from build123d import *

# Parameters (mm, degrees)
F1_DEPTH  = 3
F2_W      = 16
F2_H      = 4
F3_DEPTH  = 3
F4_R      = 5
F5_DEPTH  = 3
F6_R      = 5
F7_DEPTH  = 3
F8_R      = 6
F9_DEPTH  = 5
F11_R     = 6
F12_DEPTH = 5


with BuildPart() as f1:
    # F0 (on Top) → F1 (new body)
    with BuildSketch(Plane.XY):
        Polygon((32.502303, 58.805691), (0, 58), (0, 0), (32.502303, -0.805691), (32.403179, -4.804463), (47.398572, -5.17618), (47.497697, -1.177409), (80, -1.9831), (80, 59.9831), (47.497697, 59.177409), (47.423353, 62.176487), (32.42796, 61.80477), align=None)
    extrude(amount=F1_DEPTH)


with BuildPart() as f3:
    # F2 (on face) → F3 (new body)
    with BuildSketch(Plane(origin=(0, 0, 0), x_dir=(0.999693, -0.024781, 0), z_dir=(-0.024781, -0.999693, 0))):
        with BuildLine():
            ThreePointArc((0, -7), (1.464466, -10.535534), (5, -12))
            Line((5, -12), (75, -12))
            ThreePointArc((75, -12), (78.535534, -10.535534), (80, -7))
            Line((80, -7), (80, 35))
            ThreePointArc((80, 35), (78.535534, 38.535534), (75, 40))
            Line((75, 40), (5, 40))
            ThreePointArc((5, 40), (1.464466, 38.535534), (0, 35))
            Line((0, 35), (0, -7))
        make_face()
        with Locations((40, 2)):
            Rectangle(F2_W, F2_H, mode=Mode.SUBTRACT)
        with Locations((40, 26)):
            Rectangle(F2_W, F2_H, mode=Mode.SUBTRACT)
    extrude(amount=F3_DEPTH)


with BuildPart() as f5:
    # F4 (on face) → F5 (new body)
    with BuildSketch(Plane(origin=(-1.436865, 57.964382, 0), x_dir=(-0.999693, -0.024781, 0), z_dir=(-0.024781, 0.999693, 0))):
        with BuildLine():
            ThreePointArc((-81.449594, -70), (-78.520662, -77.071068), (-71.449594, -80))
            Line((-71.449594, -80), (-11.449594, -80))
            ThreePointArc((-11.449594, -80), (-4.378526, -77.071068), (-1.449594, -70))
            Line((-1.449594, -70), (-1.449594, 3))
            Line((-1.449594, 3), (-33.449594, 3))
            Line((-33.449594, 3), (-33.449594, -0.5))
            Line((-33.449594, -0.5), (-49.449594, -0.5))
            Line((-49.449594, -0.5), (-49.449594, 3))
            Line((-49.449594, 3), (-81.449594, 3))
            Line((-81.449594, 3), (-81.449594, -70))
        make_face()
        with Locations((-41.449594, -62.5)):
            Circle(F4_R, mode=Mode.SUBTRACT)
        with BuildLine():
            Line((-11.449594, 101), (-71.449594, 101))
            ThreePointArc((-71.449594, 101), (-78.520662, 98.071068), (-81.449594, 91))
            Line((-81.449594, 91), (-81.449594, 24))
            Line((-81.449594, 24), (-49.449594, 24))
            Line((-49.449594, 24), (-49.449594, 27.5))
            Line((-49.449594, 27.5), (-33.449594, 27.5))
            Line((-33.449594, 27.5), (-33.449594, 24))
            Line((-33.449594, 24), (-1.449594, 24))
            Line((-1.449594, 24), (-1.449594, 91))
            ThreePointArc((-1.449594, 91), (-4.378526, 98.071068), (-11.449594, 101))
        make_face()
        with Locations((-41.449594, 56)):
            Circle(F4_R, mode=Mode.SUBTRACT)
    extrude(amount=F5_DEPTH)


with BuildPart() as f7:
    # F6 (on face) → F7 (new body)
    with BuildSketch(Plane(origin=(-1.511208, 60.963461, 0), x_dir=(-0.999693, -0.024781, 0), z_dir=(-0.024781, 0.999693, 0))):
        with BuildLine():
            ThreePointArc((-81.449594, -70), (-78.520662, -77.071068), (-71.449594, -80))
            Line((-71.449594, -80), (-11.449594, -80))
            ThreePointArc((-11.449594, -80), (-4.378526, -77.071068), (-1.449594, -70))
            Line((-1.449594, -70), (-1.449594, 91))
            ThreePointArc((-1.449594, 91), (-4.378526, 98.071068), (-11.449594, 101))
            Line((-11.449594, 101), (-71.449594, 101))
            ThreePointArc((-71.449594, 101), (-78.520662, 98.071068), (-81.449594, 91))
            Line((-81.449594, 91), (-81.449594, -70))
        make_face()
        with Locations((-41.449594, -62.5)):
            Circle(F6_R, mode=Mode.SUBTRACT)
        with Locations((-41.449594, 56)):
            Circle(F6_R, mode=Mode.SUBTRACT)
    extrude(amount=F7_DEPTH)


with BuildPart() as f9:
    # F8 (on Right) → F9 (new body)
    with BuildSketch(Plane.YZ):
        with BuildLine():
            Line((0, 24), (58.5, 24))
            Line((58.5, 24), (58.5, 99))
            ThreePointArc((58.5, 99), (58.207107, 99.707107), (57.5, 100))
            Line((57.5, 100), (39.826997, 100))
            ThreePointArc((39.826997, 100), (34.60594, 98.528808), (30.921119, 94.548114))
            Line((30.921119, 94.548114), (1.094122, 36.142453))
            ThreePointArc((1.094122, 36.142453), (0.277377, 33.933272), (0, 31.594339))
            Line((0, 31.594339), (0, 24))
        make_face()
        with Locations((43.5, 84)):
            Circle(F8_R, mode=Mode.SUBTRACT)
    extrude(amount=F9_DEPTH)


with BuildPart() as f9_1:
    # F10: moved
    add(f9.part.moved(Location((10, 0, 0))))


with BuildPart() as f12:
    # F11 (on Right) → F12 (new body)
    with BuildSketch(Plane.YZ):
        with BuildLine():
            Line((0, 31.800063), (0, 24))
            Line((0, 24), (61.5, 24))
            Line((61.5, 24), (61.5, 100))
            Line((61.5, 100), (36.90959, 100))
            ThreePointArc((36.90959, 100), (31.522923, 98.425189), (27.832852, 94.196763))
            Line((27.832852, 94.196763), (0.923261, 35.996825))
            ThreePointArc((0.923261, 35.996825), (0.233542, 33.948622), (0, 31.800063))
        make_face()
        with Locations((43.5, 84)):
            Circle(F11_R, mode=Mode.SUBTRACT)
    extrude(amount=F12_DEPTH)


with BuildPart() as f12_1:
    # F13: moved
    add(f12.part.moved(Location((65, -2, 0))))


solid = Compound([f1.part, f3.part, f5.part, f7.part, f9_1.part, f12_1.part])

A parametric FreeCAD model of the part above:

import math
import FreeCAD as App
import Part
import Sketcher

V = App.Vector
Q = App.Units.Quantity


def add_polygon(sketch, points):
    """Adds a closed chain of lines whose ends are joined by coincident constraints."""
    first, n = sketch.GeometryCount, len(points)
    for a, b in zip(points, points[1:] + points[:1]):
        sketch.addGeometry(Part.LineSegment(App.Vector(*a, 0), App.Vector(*b, 0)), False)
    for i in range(n):
        sketch.addConstraint(Sketcher.Constraint("Coincident", first + i, 2, first + (i + 1) % n, 1))

doc = App.newDocument("Part")
body = doc.addObject("PartDesign::Body", "Body")

sketch1 = body.newObject("Sketcher::SketchObject", "Sketch")
sketch1.AttachmentSupport = (doc.getObject("XY_Plane"), [""])
sketch1.MapMode = "FlatFace"
add_polygon(sketch1, [(32.502303, 58.805691), (0, 58), (0, 0), (32.502303, -0.805691), (32.403179, -4.804463), (47.398572, -5.17618), (47.497697, -1.177409), (80, -1.9831), (80, 59.9831), (47.497697, 59.177409), (47.423353, 62.176487), (32.42796, 61.80477)])
sketch1.addConstraint([
    Sketcher.Constraint("Vertical", 1),
    Sketcher.Constraint("Vertical", 7),
    Sketcher.Constraint("Coincident", 1, 2, -1, 1),
    Sketcher.Constraint("Perpendicular", 2, 3),
    Sketcher.Constraint("Perpendicular", 3, 4),
    Sketcher.Constraint("Perpendicular", 4, 5),
    Sketcher.Constraint("Perpendicular", 5, 6),
    Sketcher.Constraint("Parallel", 0, 8),
    Sketcher.Constraint("Perpendicular", 8, 9),
    Sketcher.Constraint("Perpendicular", 9, 10),
    Sketcher.Constraint("Perpendicular", 10, 11),
    Sketcher.Constraint("Vertical", 5, 2, 8, 2),
    Sketcher.Constraint("Vertical", 2, 2, 11, 2),
    Sketcher.Constraint("Equal", 0, 2),
    Sketcher.Constraint("Equal", 3, 5),
    Sketcher.Constraint("Equal", 2, 6),
    Sketcher.Constraint("Equal", 4, 10),
    Sketcher.Constraint("DistanceY", 1, 2, 1, 1, Q("58 mm")),
    Sketcher.Constraint("Distance", 3, Q("4 mm")),
    Sketcher.Constraint("Distance", 4, Q("14.999999 mm")),
    Sketcher.Constraint("Distance", 9, Q("2.999999 mm")),
    Sketcher.Constraint("DistanceX", -1, 1, 6, 2, Q("80 mm")),
    Sketcher.Constraint("Angle", 0, Q("-178.580001 deg")),
])
pad1 = body.newObject("PartDesign::Pad", "Pad")
pad1.Profile = sketch1
pad1.Length = 3
body2 = doc.addObject("PartDesign::Body", "Body001")

sketch2 = body2.newObject("Sketcher::SketchObject", "Sketch001")
sketch2.Placement = App.Placement(V(0, 0, 0), App.Rotation(V(0.999692904, -0.024780998, 0), V(0, 0, 1), V(-0.024780998, -0.999692904, 0), "ZXY"))
sketch2.addGeometry(Part.ArcOfCircle(Part.Circle(V(5, -7, 0), V(0, 0, 1), 5), math.radians(179.999996), math.radians(270.000004)), False)
sketch2.addGeometry(Part.LineSegment(V(5, -12, 0), V(75, -12, 0)), False)
sketch2.addGeometry(Part.ArcOfCircle(Part.Circle(V(75, -7, 0), V(0, 0, 1), 5), math.radians(-90.000004), math.radians(0.000004)), False)
sketch2.addGeometry(Part.LineSegment(V(80, -7, 0), V(80, 35, 0)), False)
sketch2.addGeometry(Part.ArcOfCircle(Part.Circle(V(75, 35, 0), V(0, 0, 1), 5), math.radians(-0.000004), math.radians(90.000004)), False)
sketch2.addGeometry(Part.LineSegment(V(75, 40, 0), V(5, 40, 0)), False)
sketch2.addGeometry(Part.ArcOfCircle(Part.Circle(V(5, 35, 0), V(0, 0, 1), 5), math.radians(89.999996), math.radians(180.000004)), False)
sketch2.addGeometry(Part.LineSegment(V(0, 35, 0), V(0, -7, 0)), False)
add_polygon(sketch2, [(48, 0), (32, 0), (32, 4), (48, 4)])
add_polygon(sketch2, [(48, 24), (32, 24), (32, 28), (48, 28)])
sketch2.addConstraint([
    Sketcher.Constraint("Tangent", 0, 2, 1, 1),
    Sketcher.Constraint("Tangent", 1, 2, 2, 1),
    Sketcher.Constraint("Tangent", 2, 2, 3, 1),
    Sketcher.Constraint("Tangent", 3, 2, 4, 1),
    Sketcher.Constraint("Tangent", 4, 2, 5, 1),
    Sketcher.Constraint("Tangent", 5, 2, 6, 1),
    Sketcher.Constraint("Tangent", 6, 2, 7, 1),
    Sketcher.Constraint("Tangent", 7, 2, 0, 1),
    Sketcher.Constraint("Horizontal", 1),
    Sketcher.Constraint("Vertical", 3),
    Sketcher.Constraint("Horizontal", 5),
    Sketcher.Constraint("Vertical", 7),
    Sketcher.Constraint("Horizontal", 8),
    Sketcher.Constraint("Vertical", 9),
    Sketcher.Constraint("Horizontal", 10),
    Sketcher.Constraint("Vertical", 11),
    Sketcher.Constraint("Horizontal", 12),
    Sketcher.Constraint("Vertical", 13),
    Sketcher.Constraint("Horizontal", 14),
    Sketcher.Constraint("Vertical", 15),
    Sketcher.Constraint("Equal", 0, 2),
    Sketcher.Constraint("Equal", 2, 4),
    Sketcher.Constraint("Equal", 4, 6),
    Sketcher.Constraint("PointOnObject", 6, 2, -2),
    Sketcher.Constraint("PointOnObject", 8, 2, -1),
    Sketcher.Constraint("Vertical", 9, 2, 12, 2),
    Sketcher.Constraint("Vertical", 11, 2, 14, 2),
    Sketcher.Constraint("Equal", 11, 13),
    Sketcher.Constraint("Radius", 0, Q("5 mm")),
    Sketcher.Constraint("DistanceX", 1, 1, 1, 2, Q("70 mm")),
    Sketcher.Constraint("DistanceX", 8, 2, 8, 1, Q("16 mm")),
    Sketcher.Constraint("DistanceY", 3, 1, 3, 2, Q("42 mm")),
    Sketcher.Constraint("DistanceY", 9, 1, 9, 2, Q("4 mm")),
    Sketcher.Constraint("DistanceY", 0, 3, -1, 1, Q("7 mm")),
    Sketcher.Constraint("DistanceX", -1, 1, 8, 2, Q("32 mm")),
    Sketcher.Constraint("DistanceY", -1, 1, 12, 2, Q("24 mm")),
])
pad2 = body2.newObject("PartDesign::Pad", "Pad001")
pad2.Profile = sketch2
pad2.Length = 3
body3 = doc.addObject("PartDesign::Body", "Body002")
body3.AllowCompound = True

sketch3 = body3.newObject("Sketcher::SketchObject", "Sketch002")
sketch3.Placement = App.Placement(V(-1.436865, 57.964382, 0), App.Rotation(V(-0.999692904, -0.024780998, 0), V(0, 0, 1), V(-0.024780998, 0.999692904, 0), "ZXY"))
sketch3.addGeometry([
    Part.ArcOfCircle(Part.Circle(V(-71.449595, -70.000001, 0), V(0, 0, 1), 9.999999), math.radians(179.999996), math.radians(270.000004)),
    Part.LineSegment(V(-71.449594, -80, 0), V(-11.449594, -80, 0)),
    Part.ArcOfCircle(Part.Circle(V(-11.449593, -70.000001, 0), V(0, 0, 1), 9.999999), math.radians(-90.000004), math.radians(0.000004)),
    Part.LineSegment(V(-1.449594, -70, 0), V(-1.449594, 3, 0)),
    Part.LineSegment(V(-1.449594, 3, 0), V(-33.449594, 3, 0)),
    Part.LineSegment(V(-33.449594, 3, 0), V(-33.449594, -0.5, 0)),
    Part.LineSegment(V(-33.449594, -0.5, 0), V(-49.449594, -0.5, 0)),
    Part.LineSegment(V(-49.449594, -0.5, 0), V(-49.449594, 3, 0)),
    Part.LineSegment(V(-49.449594, 3, 0), V(-81.449594, 3, 0)),
    Part.LineSegment(V(-81.449594, 3, 0), V(-81.449594, -70, 0)),
    Part.Circle(V(-41.449594, -62.5, 0), V(0, 0, 1), 5),
    Part.LineSegment(V(-11.449594, 101, 0), V(-71.449594, 101, 0)),
    Part.ArcOfCircle(Part.Circle(V(-71.449595, 91.000001, 0), V(0, 0, 1), 9.999999), math.radians(89.999996), math.radians(180.000004)),
    Part.LineSegment(V(-81.449594, 91, 0), V(-81.449594, 24, 0)),
    Part.LineSegment(V(-81.449594, 24, 0), V(-49.449594, 24, 0)),
    Part.LineSegment(V(-49.449594, 24, 0), V(-49.449594, 27.5, 0)),
    Part.LineSegment(V(-49.449594, 27.5, 0), V(-33.449594, 27.5, 0)),
    Part.LineSegment(V(-33.449594, 27.5, 0), V(-33.449594, 24, 0)),
    Part.LineSegment(V(-33.449594, 24, 0), V(-1.449594, 24, 0)),
    Part.LineSegment(V(-1.449594, 24, 0), V(-1.449594, 91, 0)),
    Part.ArcOfCircle(Part.Circle(V(-11.449593, 91.000001, 0), V(0, 0, 1), 9.999999), math.radians(-0.000004), math.radians(90.000004)),
    Part.Circle(V(-41.449594, 56, 0), V(0, 0, 1), 5),
], False)
sketch3.addConstraint([
    Sketcher.Constraint("Tangent", 0, 2, 1, 1),
    Sketcher.Constraint("Tangent", 1, 2, 2, 1),
    Sketcher.Constraint("Tangent", 2, 2, 3, 1),
    Sketcher.Constraint("Coincident", 3, 2, 4, 1),
    Sketcher.Constraint("Coincident", 4, 2, 5, 1),
    Sketcher.Constraint("Coincident", 5, 2, 6, 1),
    Sketcher.Constraint("Coincident", 6, 2, 7, 1),
    Sketcher.Constraint("Coincident", 7, 2, 8, 1),
    Sketcher.Constraint("Coincident", 8, 2, 9, 1),
    Sketcher.Constraint("Tangent", 9, 2, 0, 1),
    Sketcher.Constraint("Tangent", 11, 2, 12, 1),
    Sketcher.Constraint("Tangent", 12, 2, 13, 1),
    Sketcher.Constraint("Coincident", 13, 2, 14, 1),
    Sketcher.Constraint("Coincident", 14, 2, 15, 1),
    Sketcher.Constraint("Coincident", 15, 2, 16, 1),
    Sketcher.Constraint("Coincident", 16, 2, 17, 1),
    Sketcher.Constraint("Coincident", 17, 2, 18, 1),
    Sketcher.Constraint("Coincident", 18, 2, 19, 1),
    Sketcher.Constraint("Tangent", 19, 2, 20, 1),
    Sketcher.Constraint("Tangent", 20, 2, 11, 1),
    Sketcher.Constraint("Horizontal", 1),
    Sketcher.Constraint("Vertical", 3),
    Sketcher.Constraint("Horizontal", 4),
    Sketcher.Constraint("Vertical", 5),
    Sketcher.Constraint("Horizontal", 6),
    Sketcher.Constraint("Vertical", 7),
    Sketcher.Constraint("Horizontal", 8),
    Sketcher.Constraint("Vertical", 9),
    Sketcher.Constraint("Horizontal", 11),
    Sketcher.Constraint("Vertical", 13),
    Sketcher.Constraint("Horizontal", 14),
    Sketcher.Constraint("Vertical", 15),
    Sketcher.Constraint("Horizontal", 16),
    Sketcher.Constraint("Vertical", 17),
    Sketcher.Constraint("Horizontal", 18),
    Sketcher.Constraint("Vertical", 19),
    Sketcher.Constraint("Equal", 0, 2),
    Sketcher.Constraint("Equal", 2, 12),
    Sketcher.Constraint("Equal", 12, 20),
    Sketcher.Constraint("Equal", 10, 21),
    Sketcher.Constraint("Horizontal", 4, 2, 7, 2),
    Sketcher.Constraint("Horizontal", 14, 2, 17, 2),
    Sketcher.Constraint("Vertical", 0, 3, 12, 3),
    Sketcher.Constraint("Vertical", 2, 3, 20, 3),
    Sketcher.Constraint("Vertical", 10, 3, 21, 3),
    Sketcher.Constraint("Vertical", 7, 2, 14, 2),
    Sketcher.Constraint("Vertical", 5, 2, 16, 2),
    Sketcher.Constraint("Equal", 4, 8),
    Sketcher.Constraint("Equal", 7, 15),
    Sketcher.Constraint("Diameter", 10, Q("10 mm")),
    Sketcher.Constraint("Radius", 0, Q("9.999999 mm")),
    Sketcher.Constraint("DistanceX", 1, 1, 1, 2, Q("60 mm")),
    Sketcher.Constraint("DistanceX", 4, 2, 4, 1, Q("32 mm")),
    Sketcher.Constraint("DistanceY", 3, 1, 3, 2, Q("73 mm")),
    Sketcher.Constraint("DistanceY", 13, 2, 13, 1, Q("67 mm")),
    Sketcher.Constraint("DistanceY", 5, 2, 5, 1, Q("3.5 mm")),
    Sketcher.Constraint("DistanceY", 0, 3, -1, 1, Q("70.000001 mm")),
    Sketcher.Constraint("DistanceY", -1, 1, 12, 3, Q("91.000001 mm")),
    Sketcher.Constraint("DistanceY", -1, 1, 21, 3, Q("56 mm")),
    Sketcher.Constraint("DistanceX", 0, 3, 10, 3, Q("30.000001 mm")),
    Sketcher.Constraint("DistanceY", 10, 3, 5, 2, Q("62 mm")),
    Sketcher.Constraint("DistanceX", 0, 3, -1, 1, Q("71.449595 mm")),
])
pad3 = body3.newObject("PartDesign::Pad", "Pad002")
pad3.Profile = sketch3
pad3.Length = 3
body4 = doc.addObject("PartDesign::Body", "Body003")

sketch4 = body4.newObject("Sketcher::SketchObject", "Sketch003")
sketch4.Placement = App.Placement(V(-1.511208, 60.963461, 0), App.Rotation(V(-0.999692904, -0.024780998, 0), V(0, 0, 1), V(-0.024780998, 0.999692904, 0), "ZXY"))
sketch4.addGeometry([
    Part.ArcOfCircle(Part.Circle(V(-71.449595, -70.000001, 0), V(0, 0, 1), 9.999999), math.radians(179.999996), math.radians(270.000004)),
    Part.LineSegment(V(-71.449594, -80, 0), V(-11.449594, -80, 0)),
    Part.ArcOfCircle(Part.Circle(V(-11.449593, -70.000001, 0), V(0, 0, 1), 9.999999), math.radians(-90.000004), math.radians(0.000004)),
    Part.LineSegment(V(-1.449594, -70, 0), V(-1.449594, 91, 0)),
    Part.ArcOfCircle(Part.Circle(V(-11.449593, 91.000001, 0), V(0, 0, 1), 9.999999), math.radians(-0.000004), math.radians(90.000004)),
    Part.LineSegment(V(-11.449594, 101, 0), V(-71.449594, 101, 0)),
    Part.ArcOfCircle(Part.Circle(V(-71.449595, 91.000001, 0), V(0, 0, 1), 9.999999), math.radians(89.999996), math.radians(180.000004)),
    Part.LineSegment(V(-81.449594, 91, 0), V(-81.449594, -70, 0)),
    Part.Circle(V(-41.449594, -62.5, 0), V(0, 0, 1), 5),
    Part.Circle(V(-41.449594, 56, 0), V(0, 0, 1), 5),
], False)
sketch4.addConstraint([
    Sketcher.Constraint("Tangent", 0, 2, 1, 1),
    Sketcher.Constraint("Tangent", 1, 2, 2, 1),
    Sketcher.Constraint("Tangent", 2, 2, 3, 1),
    Sketcher.Constraint("Tangent", 3, 2, 4, 1),
    Sketcher.Constraint("Tangent", 4, 2, 5, 1),
    Sketcher.Constraint("Tangent", 5, 2, 6, 1),
    Sketcher.Constraint("Tangent", 6, 2, 7, 1),
    Sketcher.Constraint("Tangent", 7, 2, 0, 1),
    Sketcher.Constraint("Horizontal", 1),
    Sketcher.Constraint("Vertical", 3),
    Sketcher.Constraint("Horizontal", 5),
    Sketcher.Constraint("Vertical", 7),
    Sketcher.Constraint("Equal", 0, 2),
    Sketcher.Constraint("Equal", 2, 4),
    Sketcher.Constraint("Equal", 4, 6),
    Sketcher.Constraint("Equal", 8, 9),
    Sketcher.Constraint("Vertical", 8, 3, 9, 3),
    Sketcher.Constraint("Diameter", 8, Q("10 mm")),
    Sketcher.Constraint("Radius", 0, Q("9.999999 mm")),
    Sketcher.Constraint("DistanceX", 1, 1, 1, 2, Q("60 mm")),
    Sketcher.Constraint("DistanceY", 3, 1, 3, 2, Q("161 mm")),
    Sketcher.Constraint("DistanceY", 0, 3, -1, 1, Q("70.000001 mm")),
    Sketcher.Constraint("DistanceY", -1, 1, 9, 3, Q("56 mm")),
    Sketcher.Constraint("DistanceX", 0, 3, 8, 3, Q("30.000001 mm")),
    Sketcher.Constraint("DistanceY", 8, 3, -1, 1, Q("62.5 mm")),
    Sketcher.Constraint("DistanceX", 0, 3, -1, 1, Q("71.449595 mm")),
])
pad4 = body4.newObject("PartDesign::Pad", "Pad003")
pad4.Profile = sketch4
pad4.Length = 3
body5 = doc.addObject("PartDesign::Body", "Body004")

sketch5 = body5.newObject("Sketcher::SketchObject", "Sketch004")
sketch5.AttachmentSupport = (doc.getObject("YZ_Plane004"), [""])
sketch5.MapMode = "FlatFace"
sketch5.addGeometry([
    Part.LineSegment(V(0, 24, 0), V(58.5, 24, 0)),
    Part.LineSegment(V(58.5, 24, 0), V(58.5, 99, 0)),
    Part.ArcOfCircle(Part.Circle(V(57.500001, 99.000001, 0), V(0, 0, 1), 0.999999), math.radians(-0.000043), math.radians(90.000043)),
    Part.LineSegment(V(57.5, 100, 0), V(39.826997, 100, 0)),
    Part.ArcOfCircle(Part.Circle(V(39.826997, 90, 0), V(0, 0, 1), 10), math.radians(89.999999), math.radians(152.9472)),
    Part.LineSegment(V(30.921119, 94.548114, 0), V(1.094122, 36.142453, 0)),
    Part.ArcOfCircle(Part.Circle(V(9.999994, 31.594341, 0), V(0, 0, 1), 9.999994), math.radians(152.947194), math.radians(180.000011)),
    Part.LineSegment(V(0, 31.594339, 0), V(0, 24, 0)),
    Part.Circle(V(43.5, 84, 0), V(0, 0, 1), 6),
], False)
sketch5.addConstraint([
    Sketcher.Constraint("Coincident", 0, 2, 1, 1),
    Sketcher.Constraint("Tangent", 1, 2, 2, 1),
    Sketcher.Constraint("Tangent", 2, 2, 3, 1),
    Sketcher.Constraint("Tangent", 3, 2, 4, 1),
    Sketcher.Constraint("Tangent", 4, 2, 5, 1),
    Sketcher.Constraint("Tangent", 5, 2, 6, 1),
    Sketcher.Constraint("Tangent", 6, 2, 7, 1),
    Sketcher.Constraint("Coincident", 7, 2, 0, 1),
    Sketcher.Constraint("Horizontal", 0),
    Sketcher.Constraint("Vertical", 1),
    Sketcher.Constraint("Horizontal", 3),
    Sketcher.Constraint("Vertical", 7),
    Sketcher.Constraint("PointOnObject", 6, 2, -2),
    Sketcher.Constraint("Diameter", 8, Q("12 mm")),
    Sketcher.Constraint("Radius", 2, Q("0.999999 mm")),
    Sketcher.Constraint("Radius", 4, Q("10 mm")),
    Sketcher.Constraint("DistanceY", 1, 1, 1, 2, Q("75 mm")),
    Sketcher.Constraint("DistanceX", 0, 1, 0, 2, Q("58.5 mm")),
    Sketcher.Constraint("DistanceY", -1, 1, 2, 3, Q("99.000001 mm")),
    Sketcher.Constraint("DistanceY", -1, 1, 8, 3, Q("84 mm")),
    Sketcher.Constraint("DistanceX", 8, 3, 2, 3, Q("14.000001 mm")),
    Sketcher.Constraint("Radius", 6, Q("9.999994 mm")),
    Sketcher.Constraint("DistanceY", 7, 2, 7, 1, Q("7.594339 mm")),
    Sketcher.Constraint("DistanceX", 3, 2, 3, 1, Q("17.673003 mm")),
])
pad5 = body5.newObject("PartDesign::Pad", "Pad004")
pad5.Profile = sketch5
pad5.Length = 5
body6 = doc.addObject("PartDesign::Body", "Body005")
doc.recompute()

body5.Placement = App.Placement(V(10, 0, 0), App.Rotation(V(0, 0, 1), 0))
boolean = body6.newObject("PartDesign::Boolean", "Boolean")
boolean.Type = "Fuse"
boolean.addObjects([body5])
body7 = doc.addObject("PartDesign::Body", "Body006")

sketch6 = body7.newObject("Sketcher::SketchObject", "Sketch005")
sketch6.AttachmentSupport = (doc.getObject("YZ_Plane006"), [""])
sketch6.MapMode = "FlatFace"
sketch6.addGeometry([
    Part.LineSegment(V(0, 31.800063, 0), V(0, 24, 0)),
    Part.LineSegment(V(0, 24, 0), V(61.5, 24, 0)),
    Part.LineSegment(V(61.5, 24, 0), V(61.5, 100, 0)),
    Part.LineSegment(V(61.5, 100, 0), V(36.90959, 100, 0)),
    Part.ArcOfCircle(Part.Circle(V(36.909591, 89.999999, 0), V(0, 0, 1), 10.000001), math.radians(90.000007), math.radians(155.185843)),
    Part.LineSegment(V(27.832852, 94.196763, 0), V(0.923261, 35.996825, 0)),
    Part.ArcOfCircle(Part.Circle(V(9.999986, 31.800066, 0), V(0, 0, 1), 9.999986), math.radians(155.185838), math.radians(180.000019)),
    Part.Circle(V(43.5, 84, 0), V(0, 0, 1), 6),
], False)
sketch6.addConstraint([
    Sketcher.Constraint("Coincident", 0, 2, 1, 1),
    Sketcher.Constraint("Coincident", 1, 2, 2, 1),
    Sketcher.Constraint("Coincident", 2, 2, 3, 1),
    Sketcher.Constraint("Tangent", 3, 2, 4, 1),
    Sketcher.Constraint("Tangent", 4, 2, 5, 1),
    Sketcher.Constraint("Tangent", 5, 2, 6, 1),
    Sketcher.Constraint("Tangent", 6, 2, 0, 1),
    Sketcher.Constraint("Vertical", 0),
    Sketcher.Constraint("Horizontal", 1),
    Sketcher.Constraint("Vertical", 2),
    Sketcher.Constraint("Horizontal", 3),
    Sketcher.Constraint("PointOnObject", 0, 2, -2),
    Sketcher.Constraint("Diameter", 7, Q("12 mm")),
    Sketcher.Constraint("Radius", 4, Q("10.000001 mm")),
    Sketcher.Constraint("DistanceY", 2, 1, 2, 2, Q("76 mm")),
    Sketcher.Constraint("DistanceX", 1, 1, 1, 2, Q("61.5 mm")),
    Sketcher.Constraint("DistanceY", -1, 1, 4, 3, Q("89.999999 mm")),
    Sketcher.Constraint("DistanceY", -1, 1, 7, 3, Q("84 mm")),
    Sketcher.Constraint("DistanceX", 7, 3, 1, 2, Q("18 mm")),
    Sketcher.Constraint("Radius", 6, Q("9.999986 mm")),
    Sketcher.Constraint("DistanceX", 3, 2, 3, 1, Q("24.59041 mm")),
    Sketcher.Constraint("Distance", 5, Q("64.119879 mm")),
])
pad6 = body7.newObject("PartDesign::Pad", "Pad005")
pad6.Profile = sketch6
pad6.Length = 5
body8 = doc.addObject("PartDesign::Body", "Body007")
doc.recompute()

body7.Placement = App.Placement(V(65, -2, 0), App.Rotation(V(0, 0, 1), 0))
boolean2 = body8.newObject("PartDesign::Boolean", "Boolean001")
boolean2.Type = "Fuse"
boolean2.addObjects([body7])

doc.recompute()
